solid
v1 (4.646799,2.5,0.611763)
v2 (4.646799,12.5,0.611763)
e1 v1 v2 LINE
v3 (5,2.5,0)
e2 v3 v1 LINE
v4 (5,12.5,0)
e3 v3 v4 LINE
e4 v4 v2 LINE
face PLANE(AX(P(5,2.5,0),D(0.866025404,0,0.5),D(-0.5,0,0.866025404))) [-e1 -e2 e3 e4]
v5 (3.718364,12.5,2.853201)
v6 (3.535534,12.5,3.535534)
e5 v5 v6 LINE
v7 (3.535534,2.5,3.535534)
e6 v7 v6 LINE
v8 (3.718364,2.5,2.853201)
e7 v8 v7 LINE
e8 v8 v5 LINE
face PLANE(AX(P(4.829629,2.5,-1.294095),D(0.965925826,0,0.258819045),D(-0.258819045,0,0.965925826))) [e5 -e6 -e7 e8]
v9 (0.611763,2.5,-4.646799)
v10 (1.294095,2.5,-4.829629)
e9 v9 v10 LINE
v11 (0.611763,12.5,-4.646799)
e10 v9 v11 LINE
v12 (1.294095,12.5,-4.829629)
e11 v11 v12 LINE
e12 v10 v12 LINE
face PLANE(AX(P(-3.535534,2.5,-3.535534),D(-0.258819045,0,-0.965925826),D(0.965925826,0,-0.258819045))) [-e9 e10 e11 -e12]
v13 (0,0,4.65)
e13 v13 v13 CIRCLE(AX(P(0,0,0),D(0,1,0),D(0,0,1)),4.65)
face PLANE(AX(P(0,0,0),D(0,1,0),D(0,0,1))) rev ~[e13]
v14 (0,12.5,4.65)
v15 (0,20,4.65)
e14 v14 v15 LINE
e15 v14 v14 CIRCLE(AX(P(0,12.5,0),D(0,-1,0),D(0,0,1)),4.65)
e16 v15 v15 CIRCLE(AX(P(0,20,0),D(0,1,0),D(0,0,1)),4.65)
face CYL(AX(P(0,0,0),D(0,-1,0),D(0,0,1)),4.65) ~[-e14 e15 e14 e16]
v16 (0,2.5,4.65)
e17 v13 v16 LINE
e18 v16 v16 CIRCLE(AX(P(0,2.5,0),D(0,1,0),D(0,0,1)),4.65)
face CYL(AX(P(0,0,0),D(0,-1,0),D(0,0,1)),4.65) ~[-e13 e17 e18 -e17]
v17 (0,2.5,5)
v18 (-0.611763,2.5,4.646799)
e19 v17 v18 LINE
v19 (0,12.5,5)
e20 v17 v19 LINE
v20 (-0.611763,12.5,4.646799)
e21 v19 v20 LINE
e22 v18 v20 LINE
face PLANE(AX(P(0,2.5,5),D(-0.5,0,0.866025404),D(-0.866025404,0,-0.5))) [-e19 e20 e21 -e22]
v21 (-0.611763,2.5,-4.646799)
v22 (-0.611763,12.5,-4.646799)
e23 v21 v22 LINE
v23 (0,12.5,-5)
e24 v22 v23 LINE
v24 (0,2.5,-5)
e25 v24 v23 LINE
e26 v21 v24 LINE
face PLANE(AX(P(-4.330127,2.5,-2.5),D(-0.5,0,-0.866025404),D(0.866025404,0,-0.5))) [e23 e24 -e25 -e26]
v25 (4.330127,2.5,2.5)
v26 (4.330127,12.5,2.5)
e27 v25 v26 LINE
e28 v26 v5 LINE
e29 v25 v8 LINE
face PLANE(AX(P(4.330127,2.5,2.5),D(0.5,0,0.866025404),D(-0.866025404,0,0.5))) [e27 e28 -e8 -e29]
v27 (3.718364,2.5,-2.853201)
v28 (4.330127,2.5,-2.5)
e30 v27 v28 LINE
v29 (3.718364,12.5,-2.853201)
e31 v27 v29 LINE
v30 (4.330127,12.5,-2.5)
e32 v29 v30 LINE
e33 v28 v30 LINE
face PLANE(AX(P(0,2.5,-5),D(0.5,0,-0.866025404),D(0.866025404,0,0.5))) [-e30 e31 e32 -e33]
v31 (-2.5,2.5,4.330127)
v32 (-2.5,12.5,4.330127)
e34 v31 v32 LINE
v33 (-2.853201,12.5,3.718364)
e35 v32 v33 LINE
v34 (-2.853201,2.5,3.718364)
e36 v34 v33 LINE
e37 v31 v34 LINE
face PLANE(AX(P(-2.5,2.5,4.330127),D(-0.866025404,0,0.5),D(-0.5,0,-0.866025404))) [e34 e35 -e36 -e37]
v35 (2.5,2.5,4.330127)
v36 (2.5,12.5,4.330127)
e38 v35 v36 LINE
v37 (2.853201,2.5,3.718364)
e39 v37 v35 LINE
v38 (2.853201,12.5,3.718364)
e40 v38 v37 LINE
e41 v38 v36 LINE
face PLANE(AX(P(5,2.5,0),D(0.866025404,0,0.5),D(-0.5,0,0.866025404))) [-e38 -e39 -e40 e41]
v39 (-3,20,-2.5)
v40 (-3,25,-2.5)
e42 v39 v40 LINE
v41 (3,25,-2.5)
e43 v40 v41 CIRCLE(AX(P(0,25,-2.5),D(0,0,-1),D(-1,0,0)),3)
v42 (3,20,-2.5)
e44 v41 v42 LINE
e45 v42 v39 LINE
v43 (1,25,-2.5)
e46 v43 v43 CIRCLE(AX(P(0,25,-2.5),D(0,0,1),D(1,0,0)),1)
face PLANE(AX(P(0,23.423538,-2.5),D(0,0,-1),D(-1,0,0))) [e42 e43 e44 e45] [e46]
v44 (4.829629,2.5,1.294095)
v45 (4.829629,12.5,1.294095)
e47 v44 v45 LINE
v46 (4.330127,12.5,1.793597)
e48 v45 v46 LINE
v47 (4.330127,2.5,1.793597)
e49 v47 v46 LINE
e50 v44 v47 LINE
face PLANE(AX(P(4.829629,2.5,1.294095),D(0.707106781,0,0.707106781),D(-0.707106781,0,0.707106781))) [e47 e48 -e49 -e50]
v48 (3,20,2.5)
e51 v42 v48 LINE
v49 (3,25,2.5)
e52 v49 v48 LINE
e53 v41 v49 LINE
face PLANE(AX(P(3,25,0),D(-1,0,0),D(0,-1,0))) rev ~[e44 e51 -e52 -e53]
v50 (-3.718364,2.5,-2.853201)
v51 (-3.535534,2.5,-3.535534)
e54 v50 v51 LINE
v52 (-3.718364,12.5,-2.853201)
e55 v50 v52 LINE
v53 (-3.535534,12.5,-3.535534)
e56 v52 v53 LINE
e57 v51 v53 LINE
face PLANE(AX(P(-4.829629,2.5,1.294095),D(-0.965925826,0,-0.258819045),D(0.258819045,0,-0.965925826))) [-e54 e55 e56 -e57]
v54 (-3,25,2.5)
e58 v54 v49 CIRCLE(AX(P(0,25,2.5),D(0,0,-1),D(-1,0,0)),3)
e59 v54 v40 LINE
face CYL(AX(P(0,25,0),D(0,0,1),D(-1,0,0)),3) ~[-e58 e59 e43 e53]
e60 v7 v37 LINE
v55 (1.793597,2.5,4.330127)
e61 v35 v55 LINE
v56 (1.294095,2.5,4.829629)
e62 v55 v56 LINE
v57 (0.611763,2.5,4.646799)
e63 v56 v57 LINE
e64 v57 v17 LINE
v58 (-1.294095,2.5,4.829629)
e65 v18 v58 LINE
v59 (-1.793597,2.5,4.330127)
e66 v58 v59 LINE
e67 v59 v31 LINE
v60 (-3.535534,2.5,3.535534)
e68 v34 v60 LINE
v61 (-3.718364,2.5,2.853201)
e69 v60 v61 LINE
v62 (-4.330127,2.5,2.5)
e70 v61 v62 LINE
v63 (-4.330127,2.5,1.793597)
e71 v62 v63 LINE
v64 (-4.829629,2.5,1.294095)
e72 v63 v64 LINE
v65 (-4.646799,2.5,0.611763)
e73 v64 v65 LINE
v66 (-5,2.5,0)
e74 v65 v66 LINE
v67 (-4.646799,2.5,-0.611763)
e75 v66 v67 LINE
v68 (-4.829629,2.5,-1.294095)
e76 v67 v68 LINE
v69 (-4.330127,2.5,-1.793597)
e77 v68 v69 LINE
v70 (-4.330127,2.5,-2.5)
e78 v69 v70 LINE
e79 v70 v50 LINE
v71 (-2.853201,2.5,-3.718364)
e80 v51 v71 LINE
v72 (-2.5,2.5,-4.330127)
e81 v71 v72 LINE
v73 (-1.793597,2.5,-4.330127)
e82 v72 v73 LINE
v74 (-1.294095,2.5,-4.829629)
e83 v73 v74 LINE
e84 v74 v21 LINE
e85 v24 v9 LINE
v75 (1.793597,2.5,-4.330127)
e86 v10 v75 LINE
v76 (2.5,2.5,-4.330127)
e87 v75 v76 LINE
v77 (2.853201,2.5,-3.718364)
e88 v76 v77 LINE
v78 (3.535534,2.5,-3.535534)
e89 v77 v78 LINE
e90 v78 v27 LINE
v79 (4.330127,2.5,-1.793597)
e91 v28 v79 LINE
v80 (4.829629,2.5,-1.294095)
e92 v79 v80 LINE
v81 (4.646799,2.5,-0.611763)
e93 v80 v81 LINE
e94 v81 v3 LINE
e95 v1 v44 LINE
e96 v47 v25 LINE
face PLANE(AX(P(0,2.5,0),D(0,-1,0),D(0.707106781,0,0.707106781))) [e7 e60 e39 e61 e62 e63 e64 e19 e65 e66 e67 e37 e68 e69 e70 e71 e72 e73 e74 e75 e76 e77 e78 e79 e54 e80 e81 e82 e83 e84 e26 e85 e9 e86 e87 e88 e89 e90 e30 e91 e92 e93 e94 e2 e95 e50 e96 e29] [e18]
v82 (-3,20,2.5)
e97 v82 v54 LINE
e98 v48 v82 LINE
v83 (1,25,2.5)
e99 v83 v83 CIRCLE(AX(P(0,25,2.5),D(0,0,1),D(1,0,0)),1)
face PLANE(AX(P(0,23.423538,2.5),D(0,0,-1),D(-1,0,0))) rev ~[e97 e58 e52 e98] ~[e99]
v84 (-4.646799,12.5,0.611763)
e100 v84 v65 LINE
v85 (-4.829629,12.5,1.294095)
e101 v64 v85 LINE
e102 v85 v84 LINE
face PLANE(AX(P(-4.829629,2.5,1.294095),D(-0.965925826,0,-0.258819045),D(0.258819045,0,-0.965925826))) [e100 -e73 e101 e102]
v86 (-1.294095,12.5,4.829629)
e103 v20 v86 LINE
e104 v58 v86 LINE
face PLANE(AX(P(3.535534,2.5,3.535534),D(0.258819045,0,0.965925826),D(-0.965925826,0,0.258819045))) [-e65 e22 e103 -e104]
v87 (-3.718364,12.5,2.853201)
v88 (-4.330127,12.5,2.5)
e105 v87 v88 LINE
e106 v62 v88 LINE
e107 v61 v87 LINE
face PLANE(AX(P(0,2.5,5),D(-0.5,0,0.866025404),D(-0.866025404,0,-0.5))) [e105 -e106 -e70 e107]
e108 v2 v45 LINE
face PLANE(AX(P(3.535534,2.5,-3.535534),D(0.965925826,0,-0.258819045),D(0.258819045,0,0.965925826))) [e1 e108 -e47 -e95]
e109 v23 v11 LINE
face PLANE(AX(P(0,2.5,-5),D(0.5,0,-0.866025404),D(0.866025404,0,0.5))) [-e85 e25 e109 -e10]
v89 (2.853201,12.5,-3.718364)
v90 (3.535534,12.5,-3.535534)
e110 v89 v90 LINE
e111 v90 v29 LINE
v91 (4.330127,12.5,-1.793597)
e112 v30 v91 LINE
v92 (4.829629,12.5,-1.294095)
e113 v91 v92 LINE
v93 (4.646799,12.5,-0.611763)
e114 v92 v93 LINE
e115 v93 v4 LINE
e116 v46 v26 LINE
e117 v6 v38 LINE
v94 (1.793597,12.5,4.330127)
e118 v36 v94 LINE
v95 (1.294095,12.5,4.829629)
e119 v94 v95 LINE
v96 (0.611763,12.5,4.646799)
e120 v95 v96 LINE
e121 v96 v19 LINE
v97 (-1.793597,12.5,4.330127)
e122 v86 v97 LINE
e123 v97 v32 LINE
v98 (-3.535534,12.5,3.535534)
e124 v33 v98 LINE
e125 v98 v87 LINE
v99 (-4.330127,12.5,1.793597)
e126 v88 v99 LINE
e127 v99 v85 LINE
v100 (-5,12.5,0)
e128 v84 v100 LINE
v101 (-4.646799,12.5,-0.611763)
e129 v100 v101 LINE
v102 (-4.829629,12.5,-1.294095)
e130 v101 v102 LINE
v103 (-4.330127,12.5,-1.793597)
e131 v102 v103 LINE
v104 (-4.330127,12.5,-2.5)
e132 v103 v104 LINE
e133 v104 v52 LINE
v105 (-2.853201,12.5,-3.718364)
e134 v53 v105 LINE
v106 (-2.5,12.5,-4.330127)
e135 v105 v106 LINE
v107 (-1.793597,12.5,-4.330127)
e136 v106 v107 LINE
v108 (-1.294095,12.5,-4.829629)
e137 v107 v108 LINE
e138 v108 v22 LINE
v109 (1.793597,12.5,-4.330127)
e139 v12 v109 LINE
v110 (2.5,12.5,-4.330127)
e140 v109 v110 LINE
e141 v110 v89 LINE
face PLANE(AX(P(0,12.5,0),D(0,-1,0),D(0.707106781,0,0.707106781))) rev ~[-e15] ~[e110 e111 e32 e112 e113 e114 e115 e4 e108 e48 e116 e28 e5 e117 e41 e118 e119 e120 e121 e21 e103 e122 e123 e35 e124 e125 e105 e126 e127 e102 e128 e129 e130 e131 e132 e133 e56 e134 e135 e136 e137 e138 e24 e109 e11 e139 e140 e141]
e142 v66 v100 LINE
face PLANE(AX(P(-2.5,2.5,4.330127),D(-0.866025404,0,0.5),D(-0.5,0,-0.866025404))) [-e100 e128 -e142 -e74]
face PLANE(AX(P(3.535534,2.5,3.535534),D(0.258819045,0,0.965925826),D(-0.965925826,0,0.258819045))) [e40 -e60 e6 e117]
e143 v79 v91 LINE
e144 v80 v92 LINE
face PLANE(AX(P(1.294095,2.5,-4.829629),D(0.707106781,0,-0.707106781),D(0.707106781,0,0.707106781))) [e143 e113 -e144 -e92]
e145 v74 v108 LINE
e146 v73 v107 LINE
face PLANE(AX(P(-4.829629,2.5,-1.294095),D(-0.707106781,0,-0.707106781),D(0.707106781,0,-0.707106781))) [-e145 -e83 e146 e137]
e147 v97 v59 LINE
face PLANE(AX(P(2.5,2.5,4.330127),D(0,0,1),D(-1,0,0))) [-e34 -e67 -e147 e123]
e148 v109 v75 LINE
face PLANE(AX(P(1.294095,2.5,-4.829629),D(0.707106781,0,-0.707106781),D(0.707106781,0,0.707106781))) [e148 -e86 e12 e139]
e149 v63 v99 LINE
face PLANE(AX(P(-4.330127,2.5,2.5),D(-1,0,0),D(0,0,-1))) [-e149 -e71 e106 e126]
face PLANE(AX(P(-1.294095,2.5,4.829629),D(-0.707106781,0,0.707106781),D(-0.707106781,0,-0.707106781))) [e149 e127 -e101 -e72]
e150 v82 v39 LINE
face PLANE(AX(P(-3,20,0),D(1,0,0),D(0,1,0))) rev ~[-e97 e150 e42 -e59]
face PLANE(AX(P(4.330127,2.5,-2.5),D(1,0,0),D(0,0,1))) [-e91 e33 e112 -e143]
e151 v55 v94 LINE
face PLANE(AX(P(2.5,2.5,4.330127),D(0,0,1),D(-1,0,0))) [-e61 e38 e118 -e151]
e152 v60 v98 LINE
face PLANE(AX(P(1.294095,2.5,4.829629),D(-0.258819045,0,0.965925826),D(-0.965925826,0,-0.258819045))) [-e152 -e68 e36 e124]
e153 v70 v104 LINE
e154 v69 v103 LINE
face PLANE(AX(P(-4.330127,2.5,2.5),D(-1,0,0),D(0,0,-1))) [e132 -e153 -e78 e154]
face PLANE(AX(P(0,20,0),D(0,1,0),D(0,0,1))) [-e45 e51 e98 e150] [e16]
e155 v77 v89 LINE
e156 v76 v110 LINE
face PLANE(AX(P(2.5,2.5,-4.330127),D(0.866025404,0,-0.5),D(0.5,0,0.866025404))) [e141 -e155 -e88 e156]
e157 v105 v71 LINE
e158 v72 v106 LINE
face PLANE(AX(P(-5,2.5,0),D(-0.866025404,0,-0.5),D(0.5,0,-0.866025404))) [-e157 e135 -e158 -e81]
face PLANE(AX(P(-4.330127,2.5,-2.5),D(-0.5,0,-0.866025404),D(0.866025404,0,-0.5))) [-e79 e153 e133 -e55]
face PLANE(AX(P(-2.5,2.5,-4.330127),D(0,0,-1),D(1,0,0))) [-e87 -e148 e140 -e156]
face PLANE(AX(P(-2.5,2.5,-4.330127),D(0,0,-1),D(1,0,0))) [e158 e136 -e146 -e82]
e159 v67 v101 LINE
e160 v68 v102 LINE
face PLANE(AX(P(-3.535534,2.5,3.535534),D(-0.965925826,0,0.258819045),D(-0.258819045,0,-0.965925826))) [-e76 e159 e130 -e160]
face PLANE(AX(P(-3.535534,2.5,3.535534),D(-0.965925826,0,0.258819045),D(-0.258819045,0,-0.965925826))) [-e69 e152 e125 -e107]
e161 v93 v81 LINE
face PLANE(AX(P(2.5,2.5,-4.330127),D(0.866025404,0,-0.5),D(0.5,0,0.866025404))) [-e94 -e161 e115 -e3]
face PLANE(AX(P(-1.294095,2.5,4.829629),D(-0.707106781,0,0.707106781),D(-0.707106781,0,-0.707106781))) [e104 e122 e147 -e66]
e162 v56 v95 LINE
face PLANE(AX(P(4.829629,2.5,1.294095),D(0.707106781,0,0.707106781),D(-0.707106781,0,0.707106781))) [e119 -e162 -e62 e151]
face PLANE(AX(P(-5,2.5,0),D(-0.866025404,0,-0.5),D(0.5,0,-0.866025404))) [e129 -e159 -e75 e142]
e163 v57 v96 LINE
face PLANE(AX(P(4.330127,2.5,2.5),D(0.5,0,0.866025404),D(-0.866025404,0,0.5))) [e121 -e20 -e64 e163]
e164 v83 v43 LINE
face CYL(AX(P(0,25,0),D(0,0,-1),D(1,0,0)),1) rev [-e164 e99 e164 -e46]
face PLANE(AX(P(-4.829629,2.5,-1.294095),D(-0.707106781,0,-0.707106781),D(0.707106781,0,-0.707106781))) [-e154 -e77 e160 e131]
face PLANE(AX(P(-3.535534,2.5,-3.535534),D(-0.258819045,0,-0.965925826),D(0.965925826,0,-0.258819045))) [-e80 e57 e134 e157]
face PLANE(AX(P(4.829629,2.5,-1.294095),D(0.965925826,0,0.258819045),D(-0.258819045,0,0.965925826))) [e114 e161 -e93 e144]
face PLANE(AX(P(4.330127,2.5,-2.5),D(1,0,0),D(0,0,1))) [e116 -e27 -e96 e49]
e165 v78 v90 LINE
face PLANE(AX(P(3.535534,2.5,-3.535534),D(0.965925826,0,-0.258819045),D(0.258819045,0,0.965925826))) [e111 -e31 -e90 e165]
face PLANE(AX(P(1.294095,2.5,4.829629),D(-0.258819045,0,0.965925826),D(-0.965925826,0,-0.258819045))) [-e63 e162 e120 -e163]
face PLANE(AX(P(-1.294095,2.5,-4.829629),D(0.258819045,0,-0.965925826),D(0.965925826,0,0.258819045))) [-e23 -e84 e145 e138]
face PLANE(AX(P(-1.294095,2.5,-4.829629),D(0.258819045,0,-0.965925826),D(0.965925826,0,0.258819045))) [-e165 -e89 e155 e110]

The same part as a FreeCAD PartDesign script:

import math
import FreeCAD as App
import Part
import Sketcher
Q = App.Units.Quantity


def add_polygon(sketch, points):
    """Adds a closed chain of lines whose ends are joined by coincident constraints."""
    first, n = sketch.GeometryCount, len(points)
    for a, b in zip(points, points[1:] + points[:1]):
        sketch.addGeometry(Part.LineSegment(App.Vector(*a, 0), App.Vector(*b, 0)), False)
    for i in range(n):
        sketch.addConstraint(Sketcher.Constraint("Coincident", first + i, 2, first + (i + 1) % n, 1))

doc = App.newDocument("Part")
body = doc.addObject("PartDesign::Body", "Body")

sketch1 = doc.addObject("Sketcher::SketchObject", "Sketch")
body.addObject(sketch1)
sketch1.AttachmentSupport = (doc.XZ_Plane, [""])
sketch1.MapMode = "FlatFace"
sketch1.addGeometry(Part.Circle(App.Vector(0, 0, 0), App.Vector(0, 0, 1), 4.65), False)
sketch1.addConstraint(Sketcher.Constraint("Coincident", 0, 3, -1, 1))
sketch1.addConstraint(Sketcher.Constraint("Diameter", 0, Q("9.3 mm")))
pad1 = doc.addObject("PartDesign::Pad", "Pad")
body.addObject(pad1)
pad1.Profile = sketch1
pad1.Length = 20
pad1.Reversed = True

sketch2 = doc.addObject("Sketcher::SketchObject", "Sketch001")
body.addObject(sketch2)
sketch2.AttachmentSupport = (doc.XY_Plane, [""])
sketch2.MapMode = "FlatFace"
sketch2.addGeometry(Part.LineSegment(App.Vector(-3, 20, 0), App.Vector(3, 20, 0)), False)
sketch2.addGeometry(Part.LineSegment(App.Vector(3, 20, 0), App.Vector(3, 25, 0)), False)
sketch2.addGeometry(Part.ArcOfCircle(Part.Circle(App.Vector(0, 25, 0), App.Vector(0, 0, 1), 3), math.radians(0), math.radians(180)), False)
sketch2.addGeometry(Part.LineSegment(App.Vector(-3, 25, 0), App.Vector(-3, 20, 0)), False)
sketch2.addGeometry(Part.Circle(App.Vector(0, 25, 0), App.Vector(0, 0, 1), 1), False)
sketch2.addConstraint(Sketcher.Constraint("Coincident", 0, 2, 1, 1))
sketch2.addConstraint(Sketcher.Constraint("Tangent", 1, 2, 2, 1))
sketch2.addConstraint(Sketcher.Constraint("Tangent", 2, 2, 3, 1))
sketch2.addConstraint(Sketcher.Constraint("Coincident", 3, 2, 0, 1))
sketch2.addConstraint(Sketcher.Constraint("Horizontal", 0))
sketch2.addConstraint(Sketcher.Constraint("Vertical", 1))
sketch2.addConstraint(Sketcher.Constraint("Vertical", 3))
sketch2.addConstraint(Sketcher.Constraint("Coincident", 4, 3, 2, 3))
sketch2.addConstraint(Sketcher.Constraint("PointOnObject", 2, 3, -2))
sketch2.addConstraint(Sketcher.Constraint("Diameter", 4, Q("2 mm")))
sketch2.addConstraint(Sketcher.Constraint("Radius", 2, Q("3 mm")))
sketch2.addConstraint(Sketcher.Constraint("DistanceY", 1, 1, 1, 2, Q("5 mm")))
sketch2.addConstraint(Sketcher.Constraint("DistanceY", -1, 1, 2, 3, Q("25 mm")))
pad2 = doc.addObject("PartDesign::Pad", "Pad001")
body.addObject(pad2)
pad2.Profile = sketch2
pad2.Length = 5
pad2.Midplane = True

sketch3 = doc.addObject("Sketcher::SketchObject", "Sketch002")
body.addObject(sketch3)
sketch3.AttachmentSupport = (doc.XZ_Plane, [""])
sketch3.MapMode = "FlatFace"
sketch3.AttachmentOffset = App.Placement(App.Vector(0, 0, -2.5), App.Rotation())
add_polygon(sketch3, [(-5, 0), (-2.5, -4.330127), (2.5, -4.330127), (5, 0), (2.5, 4.330127), (-2.5, 4.330127)])
sketch3.addConstraint(Sketcher.Constraint("Horizontal", 1))
sketch3.addConstraint(Sketcher.Constraint("Horizontal", 4))
sketch3.addConstraint(Sketcher.Constraint("Symmetric", 0, 2, 3, 2, -1, 1))
sketch3.addConstraint(Sketcher.Constraint("Symmetric", 2, 2, 5, 2, -1, 1))
sketch3.addConstraint(Sketcher.Constraint("PointOnObject", 2, 2, -1))
sketch3.addConstraint(Sketcher.Constraint("Parallel", 2, 5))
sketch3.addConstraint(Sketcher.Constraint("Vertical", 1, 2, 3, 2))
sketch3.addConstraint(Sketcher.Constraint("DistanceX", 1, 1, 1, 2, Q("5 mm")))
sketch3.addConstraint(Sketcher.Constraint("Angle", 0, Q("-60 deg")))
sketch3.addConstraint(Sketcher.Constraint("Distance", 0, Q("5 mm")))
pad3 = doc.addObject("PartDesign::Pad", "Pad002")
body.addObject(pad3)
pad3.Profile = sketch3
pad3.Length = 10
pad3.Reversed = True
doc.recompute()

polarpattern = doc.addObject("PartDesign::PolarPattern", "PolarPattern")
body.addObject(polarpattern)
polarpattern.Originals = [pad3]
polarpattern.Axis = (doc.Y_Axis, [""])
polarpattern.Angle = 45
polarpattern.Occurrences = 4
polarpattern.Reversed = True
body.Tip = polarpattern

doc.recompute()
